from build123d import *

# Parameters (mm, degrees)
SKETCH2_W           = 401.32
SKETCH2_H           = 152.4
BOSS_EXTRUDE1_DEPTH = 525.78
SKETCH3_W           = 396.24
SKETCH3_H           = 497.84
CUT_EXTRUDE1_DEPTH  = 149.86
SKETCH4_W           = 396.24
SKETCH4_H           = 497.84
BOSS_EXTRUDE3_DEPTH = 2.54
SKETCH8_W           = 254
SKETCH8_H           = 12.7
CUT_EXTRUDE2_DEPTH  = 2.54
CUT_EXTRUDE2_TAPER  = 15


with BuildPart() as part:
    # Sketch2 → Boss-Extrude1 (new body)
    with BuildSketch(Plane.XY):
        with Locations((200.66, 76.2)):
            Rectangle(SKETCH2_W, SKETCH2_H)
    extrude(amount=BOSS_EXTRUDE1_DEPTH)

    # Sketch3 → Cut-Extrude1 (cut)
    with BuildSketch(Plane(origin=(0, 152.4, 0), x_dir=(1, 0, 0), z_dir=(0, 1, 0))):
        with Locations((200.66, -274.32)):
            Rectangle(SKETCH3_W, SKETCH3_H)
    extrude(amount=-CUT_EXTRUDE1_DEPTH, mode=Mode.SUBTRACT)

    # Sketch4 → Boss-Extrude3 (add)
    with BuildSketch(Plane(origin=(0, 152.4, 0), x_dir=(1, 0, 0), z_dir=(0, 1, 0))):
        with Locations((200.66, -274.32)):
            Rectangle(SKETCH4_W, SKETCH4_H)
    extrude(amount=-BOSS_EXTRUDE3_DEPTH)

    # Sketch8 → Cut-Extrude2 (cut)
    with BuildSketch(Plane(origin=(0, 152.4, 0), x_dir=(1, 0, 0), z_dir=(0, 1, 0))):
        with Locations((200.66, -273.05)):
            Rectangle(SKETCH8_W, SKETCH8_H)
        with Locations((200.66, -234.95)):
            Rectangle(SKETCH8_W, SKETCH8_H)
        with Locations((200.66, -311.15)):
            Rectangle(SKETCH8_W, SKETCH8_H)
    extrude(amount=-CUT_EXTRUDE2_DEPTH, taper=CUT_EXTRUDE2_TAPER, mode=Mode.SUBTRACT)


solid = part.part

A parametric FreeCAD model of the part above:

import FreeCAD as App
import Part
import Sketcher
from FreeCAD import Vector
Q = App.Units.Quantity

doc = App.newDocument("Part")
params = doc.addObject("Spreadsheet::Sheet", "Params")
for row, (alias, value) in enumerate([
    ("sketch1_height", "6 in"),
    ("sketch1_width", "15.8 in"),
    ("pad1_length", "20.7 in"),
    ("sketch2_width", "15.6 in"),
    ("sketch2_height", "19.6 in"),
    ("pocket1_length", "5.9 in"),
    ("sketch3_width", "15.6 in"),
    ("sketch3_height", "19.6 in"),
    ("pad2_length", "0.1 in"),
    ("sketch4_width", "10 in"),
    ("sketch4_height", "0.5 in"),
    ("pocket2_length", "0.1 in"),
    ("pocket2_taper", "-15 deg"),
], start=1):
    params.set(f"A{row}", alias)
    params.set(f"B{row}", "=" + value)
    params.setAlias(f"B{row}", alias)

body = doc.addObject("PartDesign::Body", "Body")

# Sketch on XY plane
sketch1 = body.newObject("Sketcher::SketchObject", "Sketch")
sketch1.AttachmentSupport = (doc.getObject("XY_Plane"), [""])
sketch1.MapMode = "FlatFace"
sketch1.addGeometry([
    Part.LineSegment(Vector(0, 152, 0), Vector(0, 0, 0)),
    Part.LineSegment(Vector(0, 0, 0), Vector(401, 0, 0)),
    Part.LineSegment(Vector(401, 0, 0), Vector(401, 152, 0)),
    Part.LineSegment(Vector(401, 152, 0), Vector(0, 152, 0)),
], False)
sketch1.addConstraint([
    Sketcher.Constraint("Coincident", 0, 2, 1, 1),
    Sketcher.Constraint("Coincident", 1, 2, 2, 1),
    Sketcher.Constraint("Coincident", 2, 2, 3, 1),
    Sketcher.Constraint("Coincident", 3, 2, 0, 1),
    Sketcher.Constraint("Vertical", 0),
    Sketcher.Constraint("Horizontal", 1),
    Sketcher.Constraint("Vertical", 2),
    Sketcher.Constraint("Horizontal", 3),
    Sketcher.Constraint("Coincident", 0, 2, -1, 1),
    Sketcher.Constraint("DistanceY", 0, 2, 0, 1, Q("6 in")),
    Sketcher.Constraint("DistanceX", 1, 1, 1, 2, Q("15.8 in")),
])
sketch1.setExpression("Constraints[9]", "Params.sketch1_height")
sketch1.setExpression("Constraints[10]", "Params.sketch1_width")
pad1 = body.newObject("PartDesign::Pad", "Pad")
pad1.Profile = sketch1
pad1.setExpression("Length", "Params.pad1_length")

# Sketch on XZ plane
sketch2 = body.newObject("Sketcher::SketchObject", "Sketch001")
sketch2.AttachmentSupport = (doc.getObject("XZ_Plane"), [""])
sketch2.MapMode = "FlatFace"
sketch2.AttachmentOffset = App.Placement(Vector(0, 0, -6 * 25.4), App.Rotation())
sketch2.addGeometry([
    Part.LineSegment(Vector(3, 25, 0), Vector(3, 523, 0)),
    Part.LineSegment(Vector(3, 523, 0), Vector(399, 523, 0)),
    Part.LineSegment(Vector(399, 523, 0), Vector(399, 25, 0)),
    Part.LineSegment(Vector(399, 25, 0), Vector(3, 25, 0)),
], False)
sketch2.addConstraint([
    Sketcher.Constraint("Coincident", 0, 2, 1, 1),
    Sketcher.Constraint("Coincident", 1, 2, 2, 1),
    Sketcher.Constraint("Coincident", 2, 2, 3, 1),
    Sketcher.Constraint("Coincident", 3, 2, 0, 1),
    Sketcher.Constraint("Vertical", 0),
    Sketcher.Constraint("Horizontal", 1),
    Sketcher.Constraint("Vertical", 2),
    Sketcher.Constraint("Horizontal", 3),
    Sketcher.Constraint("DistanceX", 1, 1, 1, 2, Q("15.6 in")),
    Sketcher.Constraint("DistanceY", 0, 1, 0, 2, Q("19.6 in")),
    Sketcher.Constraint("DistanceY", -1, 1, 2, 2, Q("1 in")),
    Sketcher.Constraint("DistanceX", -1, 1, 0, 2, Q("0.1 in")),
])
sketch2.setExpression("Constraints[8]", "Params.sketch2_width")
sketch2.setExpression("Constraints[9]", "Params.sketch2_height")
pocket1 = body.newObject("PartDesign::Pocket", "Pocket")
pocket1.Profile = sketch2
pocket1.setExpression("Length", "Params.pocket1_length")
pocket1.Reversed = True

# Sketch on XZ plane
sketch3 = body.newObject("Sketcher::SketchObject", "Sketch002")
sketch3.AttachmentSupport = (doc.getObject("XZ_Plane"), [""])
sketch3.MapMode = "FlatFace"
sketch3.AttachmentOffset = App.Placement(Vector(0, 0, -6 * 25.4), App.Rotation())
sketch3.addGeometry([
    Part.LineSegment(Vector(3, 25, 0), Vector(3, 523, 0)),
    Part.LineSegment(Vector(3, 523, 0), Vector(399, 523, 0)),
    Part.LineSegment(Vector(399, 523, 0), Vector(399, 25, 0)),
    Part.LineSegment(Vector(399, 25, 0), Vector(3, 25, 0)),
], False)
sketch3.addConstraint([
    Sketcher.Constraint("Coincident", 0, 2, 1, 1),
    Sketcher.Constraint("Coincident", 1, 2, 2, 1),
    Sketcher.Constraint("Coincident", 2, 2, 3, 1),
    Sketcher.Constraint("Coincident", 3, 2, 0, 1),
    Sketcher.Constraint("Vertical", 0),
    Sketcher.Constraint("Horizontal", 1),
    Sketcher.Constraint("Vertical", 2),
    Sketcher.Constraint("Horizontal", 3),
    Sketcher.Constraint("DistanceX", 1, 1, 1, 2, Q("15.6 in")),
    Sketcher.Constraint("DistanceY", 0, 1, 0, 2, Q("19.6 in")),
    Sketcher.Constraint("DistanceY", -1, 1, 2, 2, Q("1 in")),
    Sketcher.Constraint("DistanceX", -1, 1, 0, 2, Q("0.1 in")),
])
sketch3.setExpression("Constraints[8]", "Params.sketch3_width")
sketch3.setExpression("Constraints[9]", "Params.sketch3_height")
pad2 = body.newObject("PartDesign::Pad", "Pad001")
pad2.Profile = sketch3
pad2.setExpression("Length", "Params.pad2_length")

# Sketch on XZ plane
sketch4 = body.newObject("Sketcher::SketchObject", "Sketch003")
sketch4.AttachmentSupport = (doc.getObject("XZ_Plane"), [""])
sketch4.MapMode = "FlatFace"
sketch4.AttachmentOffset = App.Placement(Vector(0, 0, -6 * 25.4), App.Rotation())
sketch4.addGeometry([
    Part.LineSegment(Vector(74, 267, 0), Vector(74, 279, 0)),  # 0
    Part.LineSegment(Vector(74, 279, 0), Vector(328, 279, 0)),  # 1
    Part.LineSegment(Vector(328, 279, 0), Vector(328, 267, 0)),  # 2
    Part.LineSegment(Vector(328, 267, 0), Vector(74, 267, 0)),  # 3
    Part.LineSegment(Vector(74, 229, 0), Vector(74, 241, 0)),  # 4
    Part.LineSegment(Vector(74, 241, 0), Vector(328, 241, 0)),  # 5
    Part.LineSegment(Vector(328, 241, 0), Vector(328, 229, 0)),  # 6
    Part.LineSegment(Vector(328, 229, 0), Vector(74, 229, 0)),  # 7
    Part.LineSegment(Vector(74, 305, 0), Vector(74, 318, 0)),  # 8
    Part.LineSegment(Vector(74, 318, 0), Vector(328, 318, 0)),  # 9
    Part.LineSegment(Vector(328, 318, 0), Vector(328, 305, 0)),  # 10
    Part.LineSegment(Vector(328, 305, 0), Vector(74, 305, 0)),  # 11
], False)
sketch4.addConstraint([
    Sketcher.Constraint("Coincident", 0, 2, 1, 1),
    Sketcher.Constraint("Coincident", 1, 2, 2, 1),
    Sketcher.Constraint("Coincident", 2, 2, 3, 1),
    Sketcher.Constraint("Coincident", 3, 2, 0, 1),
    Sketcher.Constraint("Coincident", 4, 2, 5, 1),
    Sketcher.Constraint("Coincident", 5, 2, 6, 1),
    Sketcher.Constraint("Coincident", 6, 2, 7, 1),
    Sketcher.Constraint("Coincident", 7, 2, 4, 1),
    Sketcher.Constraint("Coincident", 8, 2, 9, 1),
    Sketcher.Constraint("Coincident", 9, 2, 10, 1),
    Sketcher.Constraint("Coincident", 10, 2, 11, 1),
    Sketcher.Constraint("Coincident", 11, 2, 8, 1),
    Sketcher.Constraint("Vertical", 0),
    Sketcher.Constraint("Horizontal", 1),
    Sketcher.Constraint("Vertical", 2),
    Sketcher.Constraint("Horizontal", 3),
    Sketcher.Constraint("Vertical", 4),
    Sketcher.Constraint("Horizontal", 5),
    Sketcher.Constraint("Vertical", 6),
    Sketcher.Constraint("Horizontal", 7),
    Sketcher.Constraint("Vertical", 8),
    Sketcher.Constraint("Horizontal", 9),
    Sketcher.Constraint("Vertical", 10),
    Sketcher.Constraint("Horizontal", 11),
    Sketcher.Constraint("Vertical", 3, 2, 4, 2),
    Sketcher.Constraint("Vertical", 2, 2, 5, 2),
    Sketcher.Constraint("Vertical", 7, 2, 8, 2),
    Sketcher.Constraint("Vertical", 6, 2, 9, 2),
    Sketcher.Constraint("Equal", 2, 4),
    Sketcher.Constraint("Equal", 6, 8),
    Sketcher.Constraint("DistanceX", 1, 1, 1, 2, Q("10 in")),
    Sketcher.Constraint("DistanceY", 0, 1, 0, 2, Q("0.5 in")),
    Sketcher.Constraint("DistanceY", -1, 1, 0, 2, Q("11 in")),
    Sketcher.Constraint("DistanceY", -1, 1, 6, 2, Q("9 in")),
    Sketcher.Constraint("DistanceY", -1, 1, 10, 2, Q("12 in")),
    Sketcher.Constraint("DistanceX", -1, 1, 0, 2, Q("2.9 in")),
])
sketch4.setExpression("Constraints[30]", "Params.sketch4_width")
sketch4.setExpression("Constraints[31]", "Params.sketch4_height")
pocket2 = body.newObject("PartDesign::Pocket", "Pocket001")
pocket2.Profile = sketch4
pocket2.setExpression("Length", "Params.pocket2_length")
pocket2.Reversed = True
pocket2.setExpression("TaperAngle", "Params.pocket2_taper")

doc.recompute()
